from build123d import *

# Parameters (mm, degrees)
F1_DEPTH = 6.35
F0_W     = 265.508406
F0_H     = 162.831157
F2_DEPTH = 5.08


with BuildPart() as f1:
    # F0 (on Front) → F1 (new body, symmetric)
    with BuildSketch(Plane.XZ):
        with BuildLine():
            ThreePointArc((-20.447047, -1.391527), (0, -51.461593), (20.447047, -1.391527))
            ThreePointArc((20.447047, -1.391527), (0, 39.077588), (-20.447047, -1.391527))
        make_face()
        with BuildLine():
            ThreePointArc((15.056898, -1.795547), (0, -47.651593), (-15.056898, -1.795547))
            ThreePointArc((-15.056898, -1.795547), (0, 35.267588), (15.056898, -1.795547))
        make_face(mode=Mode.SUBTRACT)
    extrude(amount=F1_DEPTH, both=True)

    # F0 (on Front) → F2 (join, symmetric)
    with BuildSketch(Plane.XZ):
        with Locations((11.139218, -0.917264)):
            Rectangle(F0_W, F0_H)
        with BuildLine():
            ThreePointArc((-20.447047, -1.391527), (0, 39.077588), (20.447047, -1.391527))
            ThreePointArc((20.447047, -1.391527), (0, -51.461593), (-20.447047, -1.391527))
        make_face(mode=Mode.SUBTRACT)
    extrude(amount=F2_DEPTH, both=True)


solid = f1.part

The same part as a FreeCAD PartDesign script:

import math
import FreeCAD as App
import Part
import Sketcher
from FreeCAD import Vector
Q = App.Units.Quantity

doc = App.newDocument("Part")
body = doc.addObject("PartDesign::Body", "Body")

# Sketch on XZ plane
sketch1 = doc.addObject("Sketcher::SketchObject", "Sketch")
body.addObject(sketch1)
sketch1.AttachmentSupport = (doc.XZ_Plane, [""])
sketch1.MapMode = "FlatFace"
sketch1.addGeometry([
    Part.ArcOfCircle(Part.Circle(Vector(0, -22, 0), Vector(0, 0, 1), 29), math.radians(134), math.radians(406)),
    Part.ArcOfCircle(Part.Circle(Vector(0, 14, 0), Vector(0, 0, 1), 25), math.radians(-36), math.radians(216)),
    Part.ArcOfCircle(Part.Circle(Vector(0, 14, 0), Vector(0, 0, 1), 22), math.radians(-46), math.radians(226)),
    Part.ArcOfCircle(Part.Circle(Vector(0, -22, 0), Vector(0, 0, 1), 25), math.radians(126), math.radians(414)),
], False)
sketch1.addConstraint([
    Sketcher.Constraint("Coincident", 0, 1, 1, 2),
    Sketcher.Constraint("Coincident", 1, 1, 0, 2),
    Sketcher.Constraint("Coincident", 2, 1, 3, 2),
    Sketcher.Constraint("Coincident", 3, 1, 2, 2),
    Sketcher.Constraint("Coincident", 2, 3, 1, 3),
    Sketcher.Constraint("Coincident", 3, 3, 0, 3),
    Sketcher.Constraint("Equal", 1, 3),
    Sketcher.Constraint("Symmetric", 0, 1, 1, 1, -2),
    Sketcher.Constraint("Radius", 1, Q("1 in")),
    Sketcher.Constraint("Radius", 0, Q("1.15 in")),
    Sketcher.Constraint("Radius", 2, Q("0.85 in")),
    Sketcher.Constraint("DistanceX", -1, 1, 2, 1, Q("15.056898 mm")),
    Sketcher.Constraint("DistanceY", -1, 1, 1, 3, Q("13.677589 mm")),
])
pad1 = doc.addObject("PartDesign::Pad", "Pad")
body.addObject(pad1)
pad1.Profile = sketch1
pad1.Length = Q("0.5 in")
pad1.Midplane = True

# Sketch on XZ plane
sketch2 = doc.addObject("Sketcher::SketchObject", "Sketch001")
body.addObject(sketch2)
sketch2.AttachmentSupport = (doc.XZ_Plane, [""])
sketch2.MapMode = "FlatFace"
sketch2.addGeometry([
    Part.LineSegment(Vector(-122, 80, 0), Vector(-122, -82, 0)),  # 0
    Part.LineSegment(Vector(-122, -82, 0), Vector(144, -82, 0)),  # 1
    Part.LineSegment(Vector(144, -82, 0), Vector(144, 80, 0)),  # 2
    Part.LineSegment(Vector(144, 80, 0), Vector(-122, 80, 0)),  # 3
    Part.ArcOfCircle(Part.Circle(Vector(0, -22, 0), Vector(0, 0, 1), 29), math.radians(134), math.radians(406)),  # 4
    Part.ArcOfCircle(Part.Circle(Vector(0, 14, 0), Vector(0, 0, 1), 25), math.radians(-36), math.radians(216)),  # 5
], False)
sketch2.addConstraint([
    Sketcher.Constraint("Coincident", 0, 2, 1, 1),
    Sketcher.Constraint("Coincident", 1, 2, 2, 1),
    Sketcher.Constraint("Coincident", 2, 2, 3, 1),
    Sketcher.Constraint("Coincident", 3, 2, 0, 1),
    Sketcher.Constraint("Coincident", 4, 1, 5, 2),
    Sketcher.Constraint("Coincident", 5, 1, 4, 2),
    Sketcher.Constraint("Vertical", 0),
    Sketcher.Constraint("Horizontal", 1),
    Sketcher.Constraint("Vertical", 2),
    Sketcher.Constraint("Horizontal", 3),
    Sketcher.Constraint("Symmetric", 4, 1, 5, 1, -2),
    Sketcher.Constraint("Radius", 5, Q("1 in")),
    Sketcher.Constraint("Radius", 4, Q("1.15 in")),
    Sketcher.Constraint("DistanceX", 1, 1, 1, 2, Q("265.508406 mm")),
    Sketcher.Constraint("DistanceY", 0, 2, 0, 1, Q("162.831157 mm")),
    Sketcher.Constraint("DistanceY", -1, 1, 5, 3, Q("13.677589 mm")),
    Sketcher.Constraint("DistanceX", -1, 1, 1, 2, Q("143.893421 mm")),
    Sketcher.Constraint("DistanceY", 4, 3, 5, 3, Q("35.929182 mm")),
    Sketcher.Constraint("DistanceY", 0, 2, 4, 3, Q("60.081249 mm")),
])
pad2 = doc.addObject("PartDesign::Pad", "Pad001")
body.addObject(pad2)
pad2.Profile = sketch2
pad2.Length = Q("0.4 in")
pad2.Midplane = True

doc.recompute()
